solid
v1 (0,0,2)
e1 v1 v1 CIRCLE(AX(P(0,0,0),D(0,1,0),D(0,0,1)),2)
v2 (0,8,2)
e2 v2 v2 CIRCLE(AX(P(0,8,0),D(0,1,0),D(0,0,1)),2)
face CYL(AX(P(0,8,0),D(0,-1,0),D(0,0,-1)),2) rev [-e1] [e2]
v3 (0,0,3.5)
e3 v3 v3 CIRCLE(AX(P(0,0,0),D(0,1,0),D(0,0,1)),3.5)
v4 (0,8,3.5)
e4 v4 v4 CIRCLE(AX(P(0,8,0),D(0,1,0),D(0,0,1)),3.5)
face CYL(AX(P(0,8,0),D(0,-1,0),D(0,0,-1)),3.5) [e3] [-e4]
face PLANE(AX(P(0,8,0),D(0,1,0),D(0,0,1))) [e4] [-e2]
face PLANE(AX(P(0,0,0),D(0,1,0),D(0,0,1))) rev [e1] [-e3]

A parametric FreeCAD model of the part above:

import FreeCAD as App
import Part
import Sketcher
Q = App.Units.Quantity

doc = App.newDocument("Part")
body = doc.addObject("PartDesign::Body", "Body")

# Sketch on XZ plane
sketch1 = doc.addObject("Sketcher::SketchObject", "Sketch")
body.addObject(sketch1)
sketch1.AttachmentSupport = (doc.XZ_Plane, [""])
sketch1.MapMode = "FlatFace"
sketch1.addGeometry(Part.Circle(App.Vector(0, 0, 0), App.Vector(0, 0, 1), 3.5), False)
sketch1.addGeometry(Part.Circle(App.Vector(0, 0, 0), App.Vector(0, 0, 1), 2), False)
sketch1.addConstraint(Sketcher.Constraint("Coincident", 0, 3, -1, 1))
sketch1.addConstraint(Sketcher.Constraint("Coincident", 1, 3, -1, 1))
sketch1.addConstraint(Sketcher.Constraint("Diameter", 0, Q("7 mm")))
sketch1.addConstraint(Sketcher.Constraint("Diameter", 1, Q("4 mm")))
pad1 = doc.addObject("PartDesign::Pad", "Pad")
body.addObject(pad1)
pad1.Profile = sketch1
pad1.Length = 8
pad1.Reversed = True

doc.recompute()
